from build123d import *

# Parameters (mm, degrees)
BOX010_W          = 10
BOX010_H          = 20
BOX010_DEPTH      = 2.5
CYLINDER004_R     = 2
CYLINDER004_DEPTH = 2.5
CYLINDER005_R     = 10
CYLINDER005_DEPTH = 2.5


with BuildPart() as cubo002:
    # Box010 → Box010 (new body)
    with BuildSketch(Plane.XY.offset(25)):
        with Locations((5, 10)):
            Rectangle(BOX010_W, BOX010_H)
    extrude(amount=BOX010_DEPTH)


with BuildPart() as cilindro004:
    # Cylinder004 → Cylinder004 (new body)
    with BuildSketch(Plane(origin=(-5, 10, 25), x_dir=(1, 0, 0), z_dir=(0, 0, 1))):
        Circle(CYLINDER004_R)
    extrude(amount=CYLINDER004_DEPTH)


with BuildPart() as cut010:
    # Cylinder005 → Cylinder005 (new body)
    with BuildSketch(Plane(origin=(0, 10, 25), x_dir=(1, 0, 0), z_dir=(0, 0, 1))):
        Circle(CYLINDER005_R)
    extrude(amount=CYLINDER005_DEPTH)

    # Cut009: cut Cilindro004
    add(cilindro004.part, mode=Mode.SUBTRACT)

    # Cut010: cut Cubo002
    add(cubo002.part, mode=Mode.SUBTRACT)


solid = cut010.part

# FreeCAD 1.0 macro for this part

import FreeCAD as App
import Part
import Sketcher
from FreeCAD import Vector
Q = App.Units.Quantity

doc = App.newDocument("Part")
body = doc.addObject("PartDesign::Body", "Body")

sketch1 = doc.addObject("Sketcher::SketchObject", "Sketch")
body.addObject(sketch1)
sketch1.AttachmentSupport = (doc.XY_Plane, [""])
sketch1.MapMode = "FlatFace"
sketch1.AttachmentOffset = App.Placement(Vector(0, 0, 25), App.Rotation())
sketch1.addGeometry(Part.LineSegment(Vector(0, 20, 0), Vector(0, 0, 0)), False)
sketch1.addGeometry(Part.LineSegment(Vector(0, 0, 0), Vector(10, 0, 0)), False)
sketch1.addGeometry(Part.LineSegment(Vector(10, 0, 0), Vector(10, 20, 0)), False)
sketch1.addGeometry(Part.LineSegment(Vector(10, 20, 0), Vector(0, 20, 0)), False)
sketch1.addConstraint(Sketcher.Constraint("Coincident", 0, 2, 1, 1))
sketch1.addConstraint(Sketcher.Constraint("Coincident", 1, 2, 2, 1))
sketch1.addConstraint(Sketcher.Constraint("Coincident", 2, 2, 3, 1))
sketch1.addConstraint(Sketcher.Constraint("Coincident", 3, 2, 0, 1))
sketch1.addConstraint(Sketcher.Constraint("Vertical", 0))
sketch1.addConstraint(Sketcher.Constraint("Horizontal", 1))
sketch1.addConstraint(Sketcher.Constraint("Vertical", 2))
sketch1.addConstraint(Sketcher.Constraint("Horizontal", 3))
sketch1.addConstraint(Sketcher.Constraint("Coincident", 0, 2, -1, 1))
sketch1.addConstraint(Sketcher.Constraint("DistanceX", 1, 1, 1, 2, Q("10 mm")))
sketch1.addConstraint(Sketcher.Constraint("DistanceY", 0, 2, 0, 1, Q("20 mm")))
pad1 = doc.addObject("PartDesign::Pad", "Pad")
body.addObject(pad1)
pad1.Profile = sketch1
pad1.Length = 2.5
body2 = doc.addObject("PartDesign::Body", "Body001")

sketch2 = doc.addObject("Sketcher::SketchObject", "Sketch001")
body2.addObject(sketch2)
sketch2.AttachmentSupport = (doc.getObject("XY_Plane001"), [""])
sketch2.MapMode = "FlatFace"
sketch2.AttachmentOffset = App.Placement(Vector(0, 0, 25), App.Rotation())
sketch2.addGeometry(Part.Circle(Vector(-5, 10, 0), Vector(0, 0, 1), 2), False)
sketch2.addConstraint(Sketcher.Constraint("Diameter", 0, Q("4 mm")))
sketch2.addConstraint(Sketcher.Constraint("DistanceX", 0, 3, -1, 1, Q("5 mm")))
sketch2.addConstraint(Sketcher.Constraint("DistanceY", -1, 1, 0, 3, Q("10 mm")))
pad2 = doc.addObject("PartDesign::Pad", "Pad001")
body2.addObject(pad2)
pad2.Profile = sketch2
pad2.Length = 2.5
body3 = doc.addObject("PartDesign::Body", "Body002")

sketch3 = doc.addObject("Sketcher::SketchObject", "Sketch002")
body3.addObject(sketch3)
sketch3.AttachmentSupport = (doc.getObject("XY_Plane002"), [""])
sketch3.MapMode = "FlatFace"
sketch3.AttachmentOffset = App.Placement(Vector(0, 0, 25), App.Rotation())
sketch3.addGeometry(Part.Circle(Vector(0, 10, 0), Vector(0, 0, 1), 10), False)
sketch3.addConstraint(Sketcher.Constraint("PointOnObject", 0, 3, -2))
sketch3.addConstraint(Sketcher.Constraint("Diameter", 0, Q("20 mm")))
sketch3.addConstraint(Sketcher.Constraint("DistanceY", -1, 1, 0, 3, Q("10 mm")))
pad3 = doc.addObject("PartDesign::Pad", "Pad002")
body3.addObject(pad3)
pad3.Profile = sketch3
pad3.Length = 2.5
doc.recompute()

boolean = doc.addObject("PartDesign::Boolean", "Boolean")
body3.addObject(boolean)
boolean.Type = "Cut"
boolean.addObjects([body2])
doc.recompute()

boolean2 = doc.addObject("PartDesign::Boolean", "Boolean001")
body3.addObject(boolean2)
boolean2.Type = "Cut"
boolean2.addObjects([body])

doc.recompute()
